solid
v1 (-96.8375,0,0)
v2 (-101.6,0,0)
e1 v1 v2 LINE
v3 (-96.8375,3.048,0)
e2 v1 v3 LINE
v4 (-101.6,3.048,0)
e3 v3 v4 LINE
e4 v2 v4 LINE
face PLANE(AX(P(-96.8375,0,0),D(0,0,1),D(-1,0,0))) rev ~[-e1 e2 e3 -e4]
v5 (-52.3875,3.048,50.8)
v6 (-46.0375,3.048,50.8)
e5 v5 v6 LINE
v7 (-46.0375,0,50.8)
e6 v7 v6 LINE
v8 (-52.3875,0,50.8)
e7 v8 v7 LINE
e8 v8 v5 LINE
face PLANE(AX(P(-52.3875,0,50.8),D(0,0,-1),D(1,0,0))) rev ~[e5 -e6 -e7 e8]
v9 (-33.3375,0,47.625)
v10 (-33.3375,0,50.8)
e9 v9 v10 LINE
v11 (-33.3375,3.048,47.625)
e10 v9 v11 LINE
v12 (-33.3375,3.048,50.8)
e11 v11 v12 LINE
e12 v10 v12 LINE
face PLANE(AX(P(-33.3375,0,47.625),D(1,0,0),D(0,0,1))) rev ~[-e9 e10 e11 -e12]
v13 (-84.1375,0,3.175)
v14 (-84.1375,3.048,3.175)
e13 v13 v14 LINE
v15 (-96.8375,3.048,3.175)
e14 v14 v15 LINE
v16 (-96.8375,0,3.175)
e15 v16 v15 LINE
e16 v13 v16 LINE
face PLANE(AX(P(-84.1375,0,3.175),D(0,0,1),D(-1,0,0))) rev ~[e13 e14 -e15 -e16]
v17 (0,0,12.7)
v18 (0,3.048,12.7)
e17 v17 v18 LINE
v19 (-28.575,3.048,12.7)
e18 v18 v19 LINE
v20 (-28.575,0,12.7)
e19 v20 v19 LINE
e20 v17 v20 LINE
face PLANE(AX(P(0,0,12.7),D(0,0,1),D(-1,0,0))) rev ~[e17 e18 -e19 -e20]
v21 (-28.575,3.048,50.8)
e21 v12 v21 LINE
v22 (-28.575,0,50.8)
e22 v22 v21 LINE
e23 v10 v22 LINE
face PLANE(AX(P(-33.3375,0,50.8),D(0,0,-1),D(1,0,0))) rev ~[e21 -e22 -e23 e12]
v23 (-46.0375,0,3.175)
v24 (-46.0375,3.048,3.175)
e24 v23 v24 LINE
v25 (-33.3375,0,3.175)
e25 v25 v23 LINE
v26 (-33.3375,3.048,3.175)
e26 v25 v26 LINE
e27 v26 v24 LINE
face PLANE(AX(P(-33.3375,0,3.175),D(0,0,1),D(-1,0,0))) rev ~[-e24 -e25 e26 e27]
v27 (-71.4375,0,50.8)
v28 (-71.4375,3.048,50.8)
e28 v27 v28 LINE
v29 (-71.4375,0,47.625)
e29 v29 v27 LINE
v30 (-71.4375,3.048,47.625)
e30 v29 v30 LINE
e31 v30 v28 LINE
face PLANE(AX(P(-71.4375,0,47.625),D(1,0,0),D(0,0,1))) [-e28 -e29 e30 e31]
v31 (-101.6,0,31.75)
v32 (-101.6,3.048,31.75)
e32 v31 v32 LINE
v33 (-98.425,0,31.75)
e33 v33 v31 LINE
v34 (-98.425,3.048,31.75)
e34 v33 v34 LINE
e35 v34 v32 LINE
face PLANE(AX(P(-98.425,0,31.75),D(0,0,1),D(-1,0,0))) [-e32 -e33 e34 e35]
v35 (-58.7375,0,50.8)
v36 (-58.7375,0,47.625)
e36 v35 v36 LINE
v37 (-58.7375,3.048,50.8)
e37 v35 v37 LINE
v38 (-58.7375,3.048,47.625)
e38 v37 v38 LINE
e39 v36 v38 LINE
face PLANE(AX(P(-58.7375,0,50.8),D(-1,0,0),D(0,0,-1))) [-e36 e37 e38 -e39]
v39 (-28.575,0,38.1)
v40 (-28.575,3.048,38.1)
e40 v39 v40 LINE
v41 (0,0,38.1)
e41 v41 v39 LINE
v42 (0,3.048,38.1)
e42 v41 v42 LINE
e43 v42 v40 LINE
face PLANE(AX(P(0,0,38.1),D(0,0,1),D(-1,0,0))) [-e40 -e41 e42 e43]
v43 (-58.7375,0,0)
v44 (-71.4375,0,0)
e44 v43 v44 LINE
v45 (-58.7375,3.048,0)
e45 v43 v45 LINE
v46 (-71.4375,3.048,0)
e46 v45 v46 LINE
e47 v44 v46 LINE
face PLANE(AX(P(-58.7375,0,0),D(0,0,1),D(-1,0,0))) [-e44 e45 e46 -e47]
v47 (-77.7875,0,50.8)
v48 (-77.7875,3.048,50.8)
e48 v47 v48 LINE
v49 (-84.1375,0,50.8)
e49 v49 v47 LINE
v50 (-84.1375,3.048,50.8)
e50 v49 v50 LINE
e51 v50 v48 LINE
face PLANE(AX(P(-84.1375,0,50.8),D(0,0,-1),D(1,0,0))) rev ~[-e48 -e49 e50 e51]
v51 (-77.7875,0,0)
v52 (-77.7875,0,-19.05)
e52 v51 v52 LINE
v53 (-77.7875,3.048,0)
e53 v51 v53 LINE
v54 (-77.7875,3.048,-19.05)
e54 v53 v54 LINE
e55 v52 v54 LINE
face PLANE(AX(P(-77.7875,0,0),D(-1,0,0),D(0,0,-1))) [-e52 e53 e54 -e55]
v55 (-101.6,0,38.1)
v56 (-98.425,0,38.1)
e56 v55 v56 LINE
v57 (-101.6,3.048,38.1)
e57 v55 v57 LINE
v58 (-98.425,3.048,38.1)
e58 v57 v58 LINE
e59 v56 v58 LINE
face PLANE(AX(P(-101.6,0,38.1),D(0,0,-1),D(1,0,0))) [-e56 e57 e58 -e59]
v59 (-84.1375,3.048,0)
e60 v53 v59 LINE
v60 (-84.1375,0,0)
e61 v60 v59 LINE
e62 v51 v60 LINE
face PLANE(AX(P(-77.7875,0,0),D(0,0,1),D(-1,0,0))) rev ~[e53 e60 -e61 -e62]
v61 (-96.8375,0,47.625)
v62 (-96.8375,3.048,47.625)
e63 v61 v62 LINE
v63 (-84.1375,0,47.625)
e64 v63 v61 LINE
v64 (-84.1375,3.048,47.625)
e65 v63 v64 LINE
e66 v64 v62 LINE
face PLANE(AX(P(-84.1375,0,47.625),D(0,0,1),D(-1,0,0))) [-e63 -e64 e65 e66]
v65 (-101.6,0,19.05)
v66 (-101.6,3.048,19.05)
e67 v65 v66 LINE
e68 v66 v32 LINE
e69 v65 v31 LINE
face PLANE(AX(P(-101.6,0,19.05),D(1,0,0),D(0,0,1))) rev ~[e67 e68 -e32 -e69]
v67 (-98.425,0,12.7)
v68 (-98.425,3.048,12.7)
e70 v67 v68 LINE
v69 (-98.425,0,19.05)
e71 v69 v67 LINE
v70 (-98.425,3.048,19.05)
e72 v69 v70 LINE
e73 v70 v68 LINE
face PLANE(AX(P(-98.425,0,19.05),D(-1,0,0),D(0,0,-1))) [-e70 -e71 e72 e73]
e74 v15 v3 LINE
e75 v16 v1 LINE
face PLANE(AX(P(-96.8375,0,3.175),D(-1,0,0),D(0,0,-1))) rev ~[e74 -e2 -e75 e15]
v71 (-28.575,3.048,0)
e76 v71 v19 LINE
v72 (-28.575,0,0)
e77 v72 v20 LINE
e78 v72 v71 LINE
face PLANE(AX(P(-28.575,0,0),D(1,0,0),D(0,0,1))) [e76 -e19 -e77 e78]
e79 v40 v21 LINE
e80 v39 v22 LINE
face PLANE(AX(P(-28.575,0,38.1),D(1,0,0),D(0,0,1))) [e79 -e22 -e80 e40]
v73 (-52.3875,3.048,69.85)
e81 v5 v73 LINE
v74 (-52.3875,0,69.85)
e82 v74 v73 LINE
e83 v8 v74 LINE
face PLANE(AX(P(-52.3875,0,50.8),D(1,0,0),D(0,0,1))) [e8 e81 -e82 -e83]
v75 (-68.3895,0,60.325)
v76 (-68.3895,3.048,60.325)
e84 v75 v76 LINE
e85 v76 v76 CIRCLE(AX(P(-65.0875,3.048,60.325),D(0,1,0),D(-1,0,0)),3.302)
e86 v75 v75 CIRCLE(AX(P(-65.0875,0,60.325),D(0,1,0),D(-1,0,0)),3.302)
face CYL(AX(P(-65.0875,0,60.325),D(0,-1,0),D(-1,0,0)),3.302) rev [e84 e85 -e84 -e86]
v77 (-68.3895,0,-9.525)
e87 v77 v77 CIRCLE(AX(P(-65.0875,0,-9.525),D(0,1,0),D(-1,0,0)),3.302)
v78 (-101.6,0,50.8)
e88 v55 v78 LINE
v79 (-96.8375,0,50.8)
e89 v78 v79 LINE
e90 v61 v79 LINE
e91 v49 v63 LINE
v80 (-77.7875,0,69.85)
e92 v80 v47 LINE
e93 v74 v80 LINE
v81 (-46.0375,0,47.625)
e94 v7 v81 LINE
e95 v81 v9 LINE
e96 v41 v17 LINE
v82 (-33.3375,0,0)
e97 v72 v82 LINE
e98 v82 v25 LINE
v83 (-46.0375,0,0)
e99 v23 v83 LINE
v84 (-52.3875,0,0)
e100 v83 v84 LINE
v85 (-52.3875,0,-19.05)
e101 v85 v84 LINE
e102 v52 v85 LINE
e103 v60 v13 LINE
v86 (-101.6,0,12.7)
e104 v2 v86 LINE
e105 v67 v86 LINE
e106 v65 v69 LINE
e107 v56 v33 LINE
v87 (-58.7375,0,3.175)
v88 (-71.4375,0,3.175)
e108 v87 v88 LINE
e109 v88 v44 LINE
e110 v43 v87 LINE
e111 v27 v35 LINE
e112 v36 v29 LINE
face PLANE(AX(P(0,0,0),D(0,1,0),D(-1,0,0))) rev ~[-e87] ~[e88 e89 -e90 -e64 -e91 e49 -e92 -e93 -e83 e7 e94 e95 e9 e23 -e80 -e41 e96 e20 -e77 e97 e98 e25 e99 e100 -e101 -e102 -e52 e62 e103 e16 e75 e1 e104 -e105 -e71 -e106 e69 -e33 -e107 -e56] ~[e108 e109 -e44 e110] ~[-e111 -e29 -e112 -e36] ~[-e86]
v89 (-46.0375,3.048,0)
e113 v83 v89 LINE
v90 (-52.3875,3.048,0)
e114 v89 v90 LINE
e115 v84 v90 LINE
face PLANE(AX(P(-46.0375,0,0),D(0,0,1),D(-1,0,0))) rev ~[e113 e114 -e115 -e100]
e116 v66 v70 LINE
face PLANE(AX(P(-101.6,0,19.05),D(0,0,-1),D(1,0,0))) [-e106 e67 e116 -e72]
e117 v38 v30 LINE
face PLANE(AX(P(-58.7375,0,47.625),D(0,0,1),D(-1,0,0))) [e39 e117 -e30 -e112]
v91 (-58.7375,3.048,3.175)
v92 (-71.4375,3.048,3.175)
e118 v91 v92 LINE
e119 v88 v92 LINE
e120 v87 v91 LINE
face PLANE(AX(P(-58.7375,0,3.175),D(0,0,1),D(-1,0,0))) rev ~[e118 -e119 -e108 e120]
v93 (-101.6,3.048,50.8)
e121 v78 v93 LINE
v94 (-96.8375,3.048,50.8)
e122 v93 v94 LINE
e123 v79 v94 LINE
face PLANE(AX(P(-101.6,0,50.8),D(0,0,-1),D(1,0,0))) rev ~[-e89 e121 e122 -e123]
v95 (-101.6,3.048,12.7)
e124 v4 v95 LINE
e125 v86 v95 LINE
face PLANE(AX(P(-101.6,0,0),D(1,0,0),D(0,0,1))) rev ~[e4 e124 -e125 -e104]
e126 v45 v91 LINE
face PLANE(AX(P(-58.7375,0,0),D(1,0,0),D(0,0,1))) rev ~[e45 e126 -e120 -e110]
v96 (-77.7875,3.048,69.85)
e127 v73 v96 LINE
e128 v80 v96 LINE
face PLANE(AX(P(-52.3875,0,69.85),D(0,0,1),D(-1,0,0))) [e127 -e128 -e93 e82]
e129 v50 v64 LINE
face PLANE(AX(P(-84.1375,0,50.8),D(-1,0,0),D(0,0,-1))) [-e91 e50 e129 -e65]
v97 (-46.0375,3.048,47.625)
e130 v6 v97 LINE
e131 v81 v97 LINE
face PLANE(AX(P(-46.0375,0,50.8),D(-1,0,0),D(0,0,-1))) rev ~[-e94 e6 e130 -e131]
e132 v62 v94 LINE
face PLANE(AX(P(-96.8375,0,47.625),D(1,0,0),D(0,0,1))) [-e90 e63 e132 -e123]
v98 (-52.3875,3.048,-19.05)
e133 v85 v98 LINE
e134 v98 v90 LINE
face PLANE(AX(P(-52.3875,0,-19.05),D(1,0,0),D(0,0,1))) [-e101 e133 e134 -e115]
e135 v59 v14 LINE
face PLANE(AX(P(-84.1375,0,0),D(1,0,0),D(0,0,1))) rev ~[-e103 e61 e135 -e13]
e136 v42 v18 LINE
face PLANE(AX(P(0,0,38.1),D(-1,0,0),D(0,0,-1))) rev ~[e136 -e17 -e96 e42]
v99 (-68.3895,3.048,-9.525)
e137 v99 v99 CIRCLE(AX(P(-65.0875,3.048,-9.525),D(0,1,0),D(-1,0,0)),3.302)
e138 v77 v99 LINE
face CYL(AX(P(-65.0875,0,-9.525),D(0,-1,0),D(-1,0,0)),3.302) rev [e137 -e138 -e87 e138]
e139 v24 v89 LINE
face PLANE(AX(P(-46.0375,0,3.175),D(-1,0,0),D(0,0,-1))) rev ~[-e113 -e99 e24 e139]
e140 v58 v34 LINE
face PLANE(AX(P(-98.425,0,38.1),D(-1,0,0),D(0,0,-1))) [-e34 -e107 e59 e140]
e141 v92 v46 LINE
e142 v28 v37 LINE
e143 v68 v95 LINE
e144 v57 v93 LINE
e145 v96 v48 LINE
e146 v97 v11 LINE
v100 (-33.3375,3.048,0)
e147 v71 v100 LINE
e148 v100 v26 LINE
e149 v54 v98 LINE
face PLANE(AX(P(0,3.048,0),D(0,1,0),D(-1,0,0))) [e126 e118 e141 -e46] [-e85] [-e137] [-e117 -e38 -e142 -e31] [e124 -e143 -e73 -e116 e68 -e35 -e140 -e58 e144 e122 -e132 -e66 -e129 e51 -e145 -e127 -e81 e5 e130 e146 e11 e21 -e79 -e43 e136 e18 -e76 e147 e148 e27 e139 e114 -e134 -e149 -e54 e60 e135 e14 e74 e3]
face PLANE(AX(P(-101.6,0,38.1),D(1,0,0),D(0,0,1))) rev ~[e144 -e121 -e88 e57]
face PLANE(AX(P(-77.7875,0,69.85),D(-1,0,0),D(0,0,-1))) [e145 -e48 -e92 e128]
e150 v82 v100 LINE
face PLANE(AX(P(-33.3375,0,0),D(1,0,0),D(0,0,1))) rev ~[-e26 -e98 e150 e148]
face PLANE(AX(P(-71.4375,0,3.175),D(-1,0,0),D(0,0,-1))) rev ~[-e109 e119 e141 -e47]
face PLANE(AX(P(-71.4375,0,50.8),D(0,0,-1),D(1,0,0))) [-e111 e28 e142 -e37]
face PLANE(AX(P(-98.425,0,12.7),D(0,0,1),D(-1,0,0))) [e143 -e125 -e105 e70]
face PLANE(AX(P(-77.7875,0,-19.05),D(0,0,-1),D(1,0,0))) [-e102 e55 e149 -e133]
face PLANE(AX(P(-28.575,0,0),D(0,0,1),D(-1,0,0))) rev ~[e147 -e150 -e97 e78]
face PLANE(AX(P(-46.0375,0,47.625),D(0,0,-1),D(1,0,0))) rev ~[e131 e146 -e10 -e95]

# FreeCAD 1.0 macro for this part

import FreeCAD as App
import Part
import Sketcher
Q = App.Units.Quantity


def add_polygon(sketch, points):
    """Adds a closed chain of lines whose ends are joined by coincident constraints."""
    first, n = sketch.GeometryCount, len(points)
    for a, b in zip(points, points[1:] + points[:1]):
        sketch.addGeometry(Part.LineSegment(App.Vector(*a, 0), App.Vector(*b, 0)), False)
    for i in range(n):
        sketch.addConstraint(Sketcher.Constraint("Coincident", first + i, 2, first + (i + 1) % n, 1))

doc = App.newDocument("Part")
body = doc.addObject("PartDesign::Body", "Body")

sketch1 = body.newObject("Sketcher::SketchObject", "Sketch")
sketch1.AttachmentSupport = (doc.getObject("XZ_Plane"), [""])
sketch1.MapMode = "FlatFace"
add_polygon(sketch1, [(-28.6, 12.7), (-28.6, 0), (-33.3, 0), (-33.3, 3.2), (-46, 3.2), (-46, 0), (-52.4, 0), (-52.4, -19.1), (-77.8, -19.1), (-77.8, 0), (-84.1, 0), (-84.1, 3.2), (-96.8, 3.2), (-96.8, 0), (-101.6, 0), (-101.6, 12.7), (-98.4, 12.7), (-98.4, 19.1), (-101.6, 19.1), (-101.6, 31.8), (-98.4, 31.8), (-98.4, 38.1), (-101.6, 38.1), (-101.6, 50.8), (-96.8, 50.8), (-96.8, 47.6), (-84.1, 47.6), (-84.1, 50.8), (-77.8, 50.8), (-77.8, 69.8), (-52.4, 69.8), (-52.4, 50.8), (-46, 50.8), (-46, 47.6), (-33.3, 47.6), (-33.3, 50.8), (-28.6, 50.8), (-28.6, 38.1), (0, 38.1), (0, 12.7)])
add_polygon(sketch1, [(-58.7, 47.6), (-58.7, 50.8), (-71.4, 50.8), (-71.4, 47.6)])
add_polygon(sketch1, [(-71.4, 3.2), (-71.4, 0), (-58.7, 0), (-58.7, 3.2)])
sketch1.addGeometry(Part.Circle(App.Vector(-65.1, 60.3, 0), App.Vector(0, 0, 1), 3.3), False)
sketch1.addGeometry(Part.Circle(App.Vector(-65.1, -9.5, 0), App.Vector(0, 0, 1), 3.3), False)
sketch1.addConstraint(Sketcher.Constraint("Vertical", 0))
sketch1.addConstraint(Sketcher.Constraint("Horizontal", 1))
sketch1.addConstraint(Sketcher.Constraint("Vertical", 2))
sketch1.addConstraint(Sketcher.Constraint("Horizontal", 3))
sketch1.addConstraint(Sketcher.Constraint("Vertical", 4))
sketch1.addConstraint(Sketcher.Constraint("Horizontal", 5))
sketch1.addConstraint(Sketcher.Constraint("Vertical", 6))
sketch1.addConstraint(Sketcher.Constraint("Horizontal", 7))
sketch1.addConstraint(Sketcher.Constraint("Vertical", 8))
sketch1.addConstraint(Sketcher.Constraint("Horizontal", 9))
sketch1.addConstraint(Sketcher.Constraint("Vertical", 10))
sketch1.addConstraint(Sketcher.Constraint("Horizontal", 11))
sketch1.addConstraint(Sketcher.Constraint("Vertical", 12))
sketch1.addConstraint(Sketcher.Constraint("Horizontal", 13))
sketch1.addConstraint(Sketcher.Constraint("Vertical", 14))
sketch1.addConstraint(Sketcher.Constraint("Horizontal", 15))
sketch1.addConstraint(Sketcher.Constraint("Vertical", 16))
sketch1.addConstraint(Sketcher.Constraint("Horizontal", 17))
sketch1.addConstraint(Sketcher.Constraint("Vertical", 18))
sketch1.addConstraint(Sketcher.Constraint("Horizontal", 19))
sketch1.addConstraint(Sketcher.Constraint("Vertical", 20))
sketch1.addConstraint(Sketcher.Constraint("Horizontal", 21))
sketch1.addConstraint(Sketcher.Constraint("Vertical", 22))
sketch1.addConstraint(Sketcher.Constraint("Horizontal", 23))
sketch1.addConstraint(Sketcher.Constraint("Vertical", 24))
sketch1.addConstraint(Sketcher.Constraint("Horizontal", 25))
sketch1.addConstraint(Sketcher.Constraint("Vertical", 26))
sketch1.addConstraint(Sketcher.Constraint("Horizontal", 27))
sketch1.addConstraint(Sketcher.Constraint("Vertical", 28))
sketch1.addConstraint(Sketcher.Constraint("Horizontal", 29))
sketch1.addConstraint(Sketcher.Constraint("Vertical", 30))
sketch1.addConstraint(Sketcher.Constraint("Horizontal", 31))
sketch1.addConstraint(Sketcher.Constraint("Vertical", 32))
sketch1.addConstraint(Sketcher.Constraint("Horizontal", 33))
sketch1.addConstraint(Sketcher.Constraint("Vertical", 34))
sketch1.addConstraint(Sketcher.Constraint("Horizontal", 35))
sketch1.addConstraint(Sketcher.Constraint("Vertical", 36))
sketch1.addConstraint(Sketcher.Constraint("Horizontal", 37))
sketch1.addConstraint(Sketcher.Constraint("Vertical", 38))
sketch1.addConstraint(Sketcher.Constraint("Horizontal", 39))
sketch1.addConstraint(Sketcher.Constraint("Vertical", 40))
sketch1.addConstraint(Sketcher.Constraint("Horizontal", 41))
sketch1.addConstraint(Sketcher.Constraint("Vertical", 42))
sketch1.addConstraint(Sketcher.Constraint("Horizontal", 43))
sketch1.addConstraint(Sketcher.Constraint("Vertical", 44))
sketch1.addConstraint(Sketcher.Constraint("Horizontal", 45))
sketch1.addConstraint(Sketcher.Constraint("Vertical", 46))
sketch1.addConstraint(Sketcher.Constraint("Horizontal", 47))
sketch1.addConstraint(Sketcher.Constraint("Equal", 48, 49))
sketch1.addConstraint(Sketcher.Constraint("PointOnObject", 0, 2, -1))
sketch1.addConstraint(Sketcher.Constraint("PointOnObject", 4, 2, -1))
sketch1.addConstraint(Sketcher.Constraint("PointOnObject", 8, 2, -1))
sketch1.addConstraint(Sketcher.Constraint("PointOnObject", 12, 2, -1))
sketch1.addConstraint(Sketcher.Constraint("PointOnObject", 37, 2, -2))
sketch1.addConstraint(Sketcher.Constraint("PointOnObject", 44, 2, -1))
sketch1.addConstraint(Sketcher.Constraint("Horizontal", 3, 2, 10, 2))
sketch1.addConstraint(Sketcher.Constraint("Horizontal", 23, 2, 26, 2))
sketch1.addConstraint(Sketcher.Constraint("Horizontal", 27, 2, 30, 2))
sketch1.addConstraint(Sketcher.Constraint("Horizontal", 25, 2, 32, 2))
sketch1.addConstraint(Sketcher.Constraint("Horizontal", 31, 2, 34, 2))
sketch1.addConstraint(Sketcher.Constraint("Horizontal", 21, 2, 36, 2))
sketch1.addConstraint(Sketcher.Constraint("Horizontal", 15, 2, 38, 2))
sketch1.addConstraint(Sketcher.Constraint("Horizontal", 35, 2, 40, 2))
sketch1.addConstraint(Sketcher.Constraint("Horizontal", 33, 2, 42, 2))
sketch1.addConstraint(Sketcher.Constraint("Horizontal", 11, 2, 46, 2))
sketch1.addConstraint(Sketcher.Constraint("Vertical", 48, 3, 49, 3))
sketch1.addConstraint(Sketcher.Constraint("Vertical", 14, 2, 17, 2))
sketch1.addConstraint(Sketcher.Constraint("Vertical", 16, 2, 19, 2))
sketch1.addConstraint(Sketcher.Constraint("Vertical", 18, 2, 21, 2))
sketch1.addConstraint(Sketcher.Constraint("Vertical", 12, 2, 23, 2))
sketch1.addConstraint(Sketcher.Constraint("Vertical", 10, 2, 25, 2))
sketch1.addConstraint(Sketcher.Constraint("Vertical", 8, 2, 27, 2))
sketch1.addConstraint(Sketcher.Constraint("Vertical", 6, 2, 29, 2))
sketch1.addConstraint(Sketcher.Constraint("Vertical", 4, 2, 31, 2))
sketch1.addConstraint(Sketcher.Constraint("Vertical", 2, 2, 33, 2))
sketch1.addConstraint(Sketcher.Constraint("Vertical", 0, 2, 35, 2))
sketch1.addConstraint(Sketcher.Constraint("Vertical", 42, 2, 44, 2))
sketch1.addConstraint(Sketcher.Constraint("Vertical", 43, 2, 45, 2))
sketch1.addConstraint(Sketcher.Constraint("Equal", 5, 9))
sketch1.addConstraint(Sketcher.Constraint("Equal", 3, 11))
sketch1.addConstraint(Sketcher.Constraint("Equal", 1, 13))
sketch1.addConstraint(Sketcher.Constraint("Equal", 33, 41))
sketch1.addConstraint(Sketcher.Constraint("Equal", 47, 0))
sketch1.addConstraint(Sketcher.Constraint("Equal", 21, 2))
sketch1.addConstraint(Sketcher.Constraint("Equal", 31, 16))
sketch1.addConstraint(Sketcher.Constraint("Equal", 14, 18))
sketch1.addConstraint(Sketcher.Constraint("Equal", 16, 20))
sketch1.addConstraint(Sketcher.Constraint("Equal", 18, 22))
sketch1.addConstraint(Sketcher.Constraint("Equal", 12, 24))
sketch1.addConstraint(Sketcher.Constraint("Equal", 8, 28))
sketch1.addConstraint(Sketcher.Constraint("Equal", 29, 38))
sketch1.addConstraint(Sketcher.Constraint("Diameter", 48, Q("0.26 in")))
sketch1.addConstraint(Sketcher.Constraint("DistanceX", 7, 2, 7, 1, Q("1 in")))
sketch1.addConstraint(Sketcher.Constraint("DistanceX", 3, 2, 3, 1, Q("0.5 in")))
sketch1.addConstraint(Sketcher.Constraint("DistanceX", 13, 2, -1, 1, Q("4 in")))
sketch1.addConstraint(Sketcher.Constraint("DistanceY", 49, 3, 2, 2, Q("0.5 in")))
sketch1.addConstraint(Sketcher.Constraint("DistanceX", 49, 3, 5, 2, Q("0.5 in")))
sketch1.addConstraint(Sketcher.Constraint("DistanceY", 32, 2, 48, 3, Q("0.5 in")))
sketch1.addConstraint(Sketcher.Constraint("DistanceX", 40, 2, 31, 2, Q("0.5 in")))
sketch1.addConstraint(Sketcher.Constraint("DistanceX", 1, 2, 1, 1, Q("0.1875 in")))
sketch1.addConstraint(Sketcher.Constraint("DistanceX", 15, 1, 15, 2, Q("0.125 in")))
sketch1.addConstraint(Sketcher.Constraint("DistanceY", 6, 2, 49, 3, Q("0.375 in")))
pad1 = body.newObject("PartDesign::Pad", "Pad")
pad1.Profile = sketch1
pad1.Length = Q("0.12 in")
pad1.Reversed = True

doc.recompute()
